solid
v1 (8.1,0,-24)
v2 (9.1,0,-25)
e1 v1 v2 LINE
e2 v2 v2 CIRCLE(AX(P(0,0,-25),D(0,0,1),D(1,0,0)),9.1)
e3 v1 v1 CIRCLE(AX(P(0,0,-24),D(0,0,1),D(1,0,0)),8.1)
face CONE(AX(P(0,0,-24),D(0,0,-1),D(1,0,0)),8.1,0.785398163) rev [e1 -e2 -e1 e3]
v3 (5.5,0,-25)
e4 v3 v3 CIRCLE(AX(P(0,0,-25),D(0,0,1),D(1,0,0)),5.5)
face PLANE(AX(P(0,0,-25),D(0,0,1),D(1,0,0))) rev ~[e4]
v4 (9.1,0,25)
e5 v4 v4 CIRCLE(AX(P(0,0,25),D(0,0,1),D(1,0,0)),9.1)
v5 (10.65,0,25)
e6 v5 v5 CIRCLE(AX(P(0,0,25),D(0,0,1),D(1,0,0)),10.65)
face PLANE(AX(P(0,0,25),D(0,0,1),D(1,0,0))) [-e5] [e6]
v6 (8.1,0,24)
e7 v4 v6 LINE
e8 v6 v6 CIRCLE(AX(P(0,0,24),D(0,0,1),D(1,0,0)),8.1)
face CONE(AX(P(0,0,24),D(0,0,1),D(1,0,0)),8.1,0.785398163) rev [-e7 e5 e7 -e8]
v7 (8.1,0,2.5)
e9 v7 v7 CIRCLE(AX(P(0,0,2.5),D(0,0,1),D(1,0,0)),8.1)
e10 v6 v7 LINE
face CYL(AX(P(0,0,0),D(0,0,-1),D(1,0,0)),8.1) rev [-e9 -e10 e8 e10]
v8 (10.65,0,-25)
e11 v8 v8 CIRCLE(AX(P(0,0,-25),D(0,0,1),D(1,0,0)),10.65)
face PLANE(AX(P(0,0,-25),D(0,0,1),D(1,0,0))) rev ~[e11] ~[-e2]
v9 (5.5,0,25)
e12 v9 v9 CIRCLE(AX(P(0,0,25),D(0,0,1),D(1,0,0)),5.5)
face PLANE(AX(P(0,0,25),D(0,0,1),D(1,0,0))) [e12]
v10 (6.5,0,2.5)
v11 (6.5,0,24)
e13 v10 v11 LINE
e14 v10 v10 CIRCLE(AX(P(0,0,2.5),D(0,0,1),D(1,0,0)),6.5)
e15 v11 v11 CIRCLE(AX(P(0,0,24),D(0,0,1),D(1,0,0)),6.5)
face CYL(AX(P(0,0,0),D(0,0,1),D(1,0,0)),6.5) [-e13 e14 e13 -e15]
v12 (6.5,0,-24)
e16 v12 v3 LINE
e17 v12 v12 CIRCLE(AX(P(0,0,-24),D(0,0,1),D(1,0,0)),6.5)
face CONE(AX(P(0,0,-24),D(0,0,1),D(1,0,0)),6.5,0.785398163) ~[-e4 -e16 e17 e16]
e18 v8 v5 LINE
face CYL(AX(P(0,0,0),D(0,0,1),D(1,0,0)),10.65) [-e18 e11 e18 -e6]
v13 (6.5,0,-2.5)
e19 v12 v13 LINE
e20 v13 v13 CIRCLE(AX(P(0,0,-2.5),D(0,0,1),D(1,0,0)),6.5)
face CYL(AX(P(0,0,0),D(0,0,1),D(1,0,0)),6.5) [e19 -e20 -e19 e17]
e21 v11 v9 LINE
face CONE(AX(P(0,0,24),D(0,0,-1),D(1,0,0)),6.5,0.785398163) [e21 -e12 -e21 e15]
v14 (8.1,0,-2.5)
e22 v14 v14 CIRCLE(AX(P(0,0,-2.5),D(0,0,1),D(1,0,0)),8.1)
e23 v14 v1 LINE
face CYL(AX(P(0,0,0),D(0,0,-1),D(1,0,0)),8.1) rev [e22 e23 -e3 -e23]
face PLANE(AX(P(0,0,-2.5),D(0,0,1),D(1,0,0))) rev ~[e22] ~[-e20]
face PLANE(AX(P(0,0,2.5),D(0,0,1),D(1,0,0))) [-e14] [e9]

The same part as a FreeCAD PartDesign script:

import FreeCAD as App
import Part
import Sketcher

V = App.Vector


def edges_at(feature, points):
    """Names of the edges that pass closest to the given points."""
    edges = feature.Shape.Edges
    near = lambda p: min(range(len(edges)), key=lambda i: edges[i].distToShape(Part.Vertex(*p))[0])
    return sorted({f"Edge{near(p) + 1}" for p in points})

doc = App.newDocument("Part")
body = doc.addObject("PartDesign::Body", "Body")

sketch1 = body.newObject("Sketcher::SketchObject", "Sketch")
sketch1.AttachmentSupport = (doc.getObject("XY_Plane"), [""])
sketch1.MapMode = "FlatFace"
sketch1.addGeometry([
    Part.Circle(V(0, 0, 0), V(0, 0, 1), 11),
    Part.Circle(V(0, 0, 0), V(0, 0, 1), 8),
], False)
sketch1.addConstraint([
    Sketcher.Constraint("Coincident", 0, 3, -1, 1),
    Sketcher.Constraint("Coincident", 1, 3, -1, 1),
    Sketcher.Constraint("Diameter", 0, 21.3),
    Sketcher.Constraint("Diameter", 1, 16.2),
])
pad1 = body.newObject("PartDesign::Pad", "Pad")
pad1.Profile = sketch1
pad1.Length = 50
pad1.Midplane = True

sketch2 = body.newObject("Sketcher::SketchObject", "Sketch001")
sketch2.AttachmentSupport = (doc.getObject("XY_Plane"), [""])
sketch2.MapMode = "FlatFace"
sketch2.addGeometry([
    Part.Circle(V(0, 0, 0), V(0, 0, 1), 8),
    Part.Circle(V(0, 0, 0), V(0, 0, 1), 6),
], False)
sketch2.addConstraint([
    Sketcher.Constraint("Coincident", 0, 3, -1, 1),
    Sketcher.Constraint("Coincident", 1, 3, -1, 1),
    Sketcher.Constraint("Diameter", 1, 13.0),
    Sketcher.Constraint("Diameter", 0, 16.2),
])
pad2 = body.newObject("PartDesign::Pad", "Pad001")
pad2.Profile = sketch2
pad2.Length = 5
pad2.Midplane = True

sketch3 = body.newObject("Sketcher::SketchObject", "Sketch002")
sketch3.AttachmentSupport = (doc.getObject("XY_Plane"), [""])
sketch3.MapMode = "FlatFace"
sketch3.addGeometry(Part.Circle(V(0, 0, 0), V(0, 0, 1), 6), False)
sketch3.addConstraint([
    Sketcher.Constraint("Coincident", 0, 3, -1, 1),
    Sketcher.Constraint("Diameter", 0, 13.0),
])
pad3 = body.newObject("PartDesign::Pad", "Pad002")
pad3.Profile = sketch3
pad3.Length = 50
pad3.Midplane = True
doc.recompute()

chamfer = body.newObject("PartDesign::Chamfer", "Chamfer")
chamfer.Base = (pad3, edges_at(pad3, [
    (-8.1, 0, -25),
    (-6.5, 0, -25),
    (-8.1, 0, 25),
    (-6.5, 0, 25),
]))
chamfer.Size = 1

doc.recompute()
